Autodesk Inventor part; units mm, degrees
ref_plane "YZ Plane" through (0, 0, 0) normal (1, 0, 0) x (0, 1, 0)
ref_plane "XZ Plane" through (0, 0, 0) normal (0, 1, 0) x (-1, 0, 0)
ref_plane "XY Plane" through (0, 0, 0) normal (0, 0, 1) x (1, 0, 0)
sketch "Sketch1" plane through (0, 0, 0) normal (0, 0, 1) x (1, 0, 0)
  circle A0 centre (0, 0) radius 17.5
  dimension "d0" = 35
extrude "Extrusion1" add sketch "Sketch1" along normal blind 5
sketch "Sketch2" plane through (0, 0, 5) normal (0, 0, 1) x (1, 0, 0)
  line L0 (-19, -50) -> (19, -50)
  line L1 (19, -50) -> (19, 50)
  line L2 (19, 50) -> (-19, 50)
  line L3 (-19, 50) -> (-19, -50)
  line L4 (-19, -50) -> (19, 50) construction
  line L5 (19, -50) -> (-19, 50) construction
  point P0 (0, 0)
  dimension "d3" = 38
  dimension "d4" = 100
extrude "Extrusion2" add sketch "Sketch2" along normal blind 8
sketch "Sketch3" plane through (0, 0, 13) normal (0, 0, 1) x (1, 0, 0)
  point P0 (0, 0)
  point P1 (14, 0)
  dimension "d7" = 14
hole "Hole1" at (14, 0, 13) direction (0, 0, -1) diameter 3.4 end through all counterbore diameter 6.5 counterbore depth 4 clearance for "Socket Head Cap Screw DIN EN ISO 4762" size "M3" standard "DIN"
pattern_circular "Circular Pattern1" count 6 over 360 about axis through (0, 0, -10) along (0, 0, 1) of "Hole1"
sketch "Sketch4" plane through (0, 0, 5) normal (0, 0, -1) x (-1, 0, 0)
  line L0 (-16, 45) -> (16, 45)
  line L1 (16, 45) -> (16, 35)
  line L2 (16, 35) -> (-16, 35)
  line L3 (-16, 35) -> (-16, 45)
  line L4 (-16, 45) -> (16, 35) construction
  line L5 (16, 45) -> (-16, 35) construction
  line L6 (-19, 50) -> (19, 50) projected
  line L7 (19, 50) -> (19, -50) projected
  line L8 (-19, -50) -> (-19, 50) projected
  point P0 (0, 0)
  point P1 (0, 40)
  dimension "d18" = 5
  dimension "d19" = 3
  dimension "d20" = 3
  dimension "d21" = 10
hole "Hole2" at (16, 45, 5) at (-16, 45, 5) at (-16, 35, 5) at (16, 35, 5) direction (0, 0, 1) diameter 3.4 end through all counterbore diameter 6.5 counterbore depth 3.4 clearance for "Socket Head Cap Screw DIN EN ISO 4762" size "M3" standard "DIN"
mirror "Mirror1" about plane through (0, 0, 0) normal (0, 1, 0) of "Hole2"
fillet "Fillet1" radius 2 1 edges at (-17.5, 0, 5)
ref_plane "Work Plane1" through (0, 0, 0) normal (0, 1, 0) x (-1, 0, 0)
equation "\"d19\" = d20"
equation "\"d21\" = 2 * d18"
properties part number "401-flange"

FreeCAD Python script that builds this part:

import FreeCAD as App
import Part
import Sketcher

V = App.Vector


def edges_at(feature, points):
    """Names of the edges that pass closest to the given points."""
    edges = feature.Shape.Edges
    near = lambda p: min(range(len(edges)), key=lambda i: edges[i].distToShape(Part.Vertex(*p))[0])
    return sorted({f"Edge{near(p) + 1}" for p in points})

doc = App.newDocument("Part")
body = doc.addObject("PartDesign::Body", "Body")

sketch1 = body.newObject("Sketcher::SketchObject", "Sketch")
sketch1.AttachmentSupport = (doc.getObject("XY_Plane"), [""])
sketch1.MapMode = "FlatFace"
sketch1.addGeometry(Part.Circle(V(0, 0, 0), V(0, 0, 1), 17.5), False)
sketch1.addConstraint([
    Sketcher.Constraint("Coincident", 0, 3, -1, 1),
    Sketcher.Constraint("Diameter", 0, 35.0),
])
pad1 = body.newObject("PartDesign::Pad", "Pad")
pad1.Profile = sketch1
pad1.Length = 5

sketch2 = body.newObject("Sketcher::SketchObject", "Sketch001")
sketch2.AttachmentSupport = (doc.getObject("XY_Plane"), [""])
sketch2.MapMode = "FlatFace"
sketch2.AttachmentOffset = App.Placement(V(0, 0, 5), App.Rotation())
sketch2.addGeometry([
    Part.LineSegment(V(-19, 50, 0), V(-19, -50, 0)),
    Part.LineSegment(V(-19, -50, 0), V(19, -50, 0)),
    Part.LineSegment(V(19, -50, 0), V(19, 50, 0)),
    Part.LineSegment(V(19, 50, 0), V(-19, 50, 0)),
], False)
sketch2.addConstraint([
    Sketcher.Constraint("Coincident", 0, 2, 1, 1),
    Sketcher.Constraint("Coincident", 1, 2, 2, 1),
    Sketcher.Constraint("Coincident", 2, 2, 3, 1),
    Sketcher.Constraint("Coincident", 3, 2, 0, 1),
    Sketcher.Constraint("Vertical", 0),
    Sketcher.Constraint("Horizontal", 1),
    Sketcher.Constraint("Vertical", 2),
    Sketcher.Constraint("Horizontal", 3),
    Sketcher.Constraint("Symmetric", 0, 2, 2, 2, -1, 1),
    Sketcher.Constraint("DistanceX", 1, 1, 1, 2, 38.0),
    Sketcher.Constraint("DistanceY", 0, 2, 0, 1, 100.0),
])
pad2 = body.newObject("PartDesign::Pad", "Pad001")
pad2.Profile = sketch2
pad2.Length = 8

sketch3 = body.newObject("Sketcher::SketchObject", "Sketch002")
sketch3.AttachmentSupport = (doc.getObject("XY_Plane"), [""])
sketch3.MapMode = "FlatFace"
sketch3.AttachmentOffset = App.Placement(V(0, 0, 13), App.Rotation())
sketch3.addGeometry(Part.Circle(V(14, 0, 0), V(0, 0, 1), 1.7), False)
sketch3.addConstraint([
    Sketcher.Constraint("PointOnObject", 0, 3, -1),
    Sketcher.Constraint("Diameter", 0, 3.4),
    Sketcher.Constraint("DistanceX", -1, 1, 0, 3, 14.0),
])
doc.recompute()
hole = body.newObject("PartDesign::Hole", "Hole")
hole.Profile = sketch3
hole.ThreadType = "None"
hole.Diameter = 3.4
hole.DepthType = "ThroughAll"
hole.HoleCutType = "Counterbore"
hole.HoleCutDiameter = 6.5
hole.HoleCutDepth = 4
doc.recompute()

polarpattern = body.newObject("PartDesign::PolarPattern", "PolarPattern")
polarpattern.Originals = [hole]
polarpattern.Axis = (doc.getObject("Z_Axis"), [""])
polarpattern.Angle = 360
polarpattern.Occurrences = 6
body.Tip = polarpattern

sketch4 = body.newObject("Sketcher::SketchObject", "Sketch003")
sketch4.AttachmentSupport = (doc.getObject("XY_Plane"), [""])
sketch4.MapMode = "FlatFace"
sketch4.AttachmentOffset = App.Placement(V(0, 0, 5), App.Rotation())
sketch4.addGeometry([
    Part.Circle(V(16, 45, 0), V(0, 0, 1), 1.7),
    Part.Circle(V(-16, 45, 0), V(0, 0, 1), 1.7),
    Part.Circle(V(-16, 35, 0), V(0, 0, 1), 1.7),
    Part.Circle(V(16, 35, 0), V(0, 0, 1), 1.7),
], False)
sketch4.addConstraint([
    Sketcher.Constraint("Equal", 0, 1),
    Sketcher.Constraint("Equal", 1, 2),
    Sketcher.Constraint("Equal", 2, 3),
    Sketcher.Constraint("Symmetric", 0, 3, 1, 3, -2),
    Sketcher.Constraint("Symmetric", 2, 3, 3, 3, -2),
    Sketcher.Constraint("Vertical", 1, 3, 2, 3),
    Sketcher.Constraint("Diameter", 0, 3.4),
    Sketcher.Constraint("DistanceX", -1, 1, 0, 3, 16.0),
    Sketcher.Constraint("DistanceY", -1, 1, 0, 3, 45.0),
    Sketcher.Constraint("DistanceY", -1, 1, 2, 3, 35.0),
])
doc.recompute()
hole2 = body.newObject("PartDesign::Hole", "Hole001")
hole2.Profile = sketch4
hole2.ThreadType = "None"
hole2.Diameter = 3.4
hole2.DepthType = "ThroughAll"
hole2.HoleCutType = "Counterbore"
hole2.HoleCutDiameter = 6.5
hole2.HoleCutDepth = 3.4
hole2.Reversed = True
doc.recompute()

mirrored = body.newObject("PartDesign::Mirrored", "Mirrored")
mirrored.Originals = [hole2]
mirrored.MirrorPlane = (doc.getObject("XZ_Plane"), [""])
body.Tip = mirrored
doc.recompute()

fillet = body.newObject("PartDesign::Fillet", "Fillet")
fillet.Base = (mirrored, edges_at(mirrored, [(-17.5, 0, 5)]))
fillet.Radius = 2

doc.recompute()
